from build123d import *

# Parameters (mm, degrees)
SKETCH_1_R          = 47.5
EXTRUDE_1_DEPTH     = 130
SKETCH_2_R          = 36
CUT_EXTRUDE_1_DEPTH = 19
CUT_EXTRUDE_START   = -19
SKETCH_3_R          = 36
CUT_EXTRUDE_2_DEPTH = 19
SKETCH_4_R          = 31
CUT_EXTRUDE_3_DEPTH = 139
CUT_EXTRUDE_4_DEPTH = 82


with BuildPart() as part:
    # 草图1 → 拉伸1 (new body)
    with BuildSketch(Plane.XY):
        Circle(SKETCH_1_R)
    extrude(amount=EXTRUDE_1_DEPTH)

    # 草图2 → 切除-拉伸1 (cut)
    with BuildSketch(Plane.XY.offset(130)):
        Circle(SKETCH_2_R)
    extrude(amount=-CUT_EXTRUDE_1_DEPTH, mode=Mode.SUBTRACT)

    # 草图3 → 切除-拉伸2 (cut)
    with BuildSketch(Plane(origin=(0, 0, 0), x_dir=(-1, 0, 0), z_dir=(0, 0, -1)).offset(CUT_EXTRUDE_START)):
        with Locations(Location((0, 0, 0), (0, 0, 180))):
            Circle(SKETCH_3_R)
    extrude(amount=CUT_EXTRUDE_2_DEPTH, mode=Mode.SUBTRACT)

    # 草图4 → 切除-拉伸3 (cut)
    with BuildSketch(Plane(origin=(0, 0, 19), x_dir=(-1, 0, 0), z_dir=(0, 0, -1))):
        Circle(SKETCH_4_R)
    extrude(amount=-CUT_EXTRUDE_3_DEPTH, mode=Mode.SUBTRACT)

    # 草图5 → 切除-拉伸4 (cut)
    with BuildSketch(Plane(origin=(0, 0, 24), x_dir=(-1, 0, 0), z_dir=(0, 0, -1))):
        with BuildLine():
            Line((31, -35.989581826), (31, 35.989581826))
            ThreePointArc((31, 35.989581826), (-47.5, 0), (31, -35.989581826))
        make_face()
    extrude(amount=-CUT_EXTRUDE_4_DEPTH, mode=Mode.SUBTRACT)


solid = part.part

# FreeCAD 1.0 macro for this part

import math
import FreeCAD as App
import Part
import Sketcher
from FreeCAD import Vector
Q = App.Units.Quantity

doc = App.newDocument("Part")
body = doc.addObject("PartDesign::Body", "Body")

sketch1 = body.newObject("Sketcher::SketchObject", "Sketch")
sketch1.AttachmentSupport = (doc.getObject("XY_Plane"), [""])
sketch1.MapMode = "FlatFace"
sketch1.addGeometry(Part.Circle(Vector(0, 0, 0), Vector(0, 0, 1), 48), False)
sketch1.addConstraint([
    Sketcher.Constraint("Coincident", 0, 3, -1, 1),
    Sketcher.Constraint("Diameter", 0, Q("95 mm")),
])
pad1 = body.newObject("PartDesign::Pad", "Pad")
pad1.Profile = sketch1
pad1.Length = 130

sketch2 = body.newObject("Sketcher::SketchObject", "Sketch001")
sketch2.AttachmentSupport = (doc.getObject("XY_Plane"), [""])
sketch2.MapMode = "FlatFace"
sketch2.AttachmentOffset = App.Placement(Vector(0, 0, 130), App.Rotation())
sketch2.addGeometry(Part.Circle(Vector(0, 0, 0), Vector(0, 0, 1), 36), False)
sketch2.addConstraint([
    Sketcher.Constraint("Coincident", 0, 3, -1, 1),
    Sketcher.Constraint("Diameter", 0, Q("72 mm")),
])
pocket1 = body.newObject("PartDesign::Pocket", "Pocket")
pocket1.Profile = sketch2
pocket1.Length = 19

sketch3 = body.newObject("Sketcher::SketchObject", "Sketch002")
sketch3.AttachmentSupport = (doc.getObject("XY_Plane"), [""])
sketch3.MapMode = "FlatFace"
sketch3.AttachmentOffset = App.Placement(Vector(0, 0, 19), App.Rotation())
sketch3.addGeometry(Part.Circle(Vector(0, 0, 0), Vector(0, 0, 1), 36), False)
sketch3.addConstraint([
    Sketcher.Constraint("Coincident", 0, 3, -1, 1),
    Sketcher.Constraint("Diameter", 0, Q("72 mm")),
])
pocket2 = body.newObject("PartDesign::Pocket", "Pocket001")
pocket2.Profile = sketch3
pocket2.Length = 19

sketch4 = body.newObject("Sketcher::SketchObject", "Sketch003")
sketch4.AttachmentSupport = (doc.getObject("XY_Plane"), [""])
sketch4.MapMode = "FlatFace"
sketch4.AttachmentOffset = App.Placement(Vector(0, 0, 19), App.Rotation())
sketch4.addGeometry(Part.Circle(Vector(0, 0, 0), Vector(0, 0, 1), 31), False)
sketch4.addConstraint([
    Sketcher.Constraint("Coincident", 0, 3, -1, 1),
    Sketcher.Constraint("Diameter", 0, Q("62 mm")),
])
pocket3 = body.newObject("PartDesign::Pocket", "Pocket002")
pocket3.Profile = sketch4
pocket3.Length = 139
pocket3.Reversed = True

sketch5 = body.newObject("Sketcher::SketchObject", "Sketch004")
sketch5.AttachmentSupport = (doc.getObject("XY_Plane"), [""])
sketch5.MapMode = "FlatFace"
sketch5.AttachmentOffset = App.Placement(Vector(0, 0, 24), App.Rotation())
sketch5.addGeometry([
    Part.LineSegment(Vector(-31, -36, 0), Vector(-31, 36, 0)),
    Part.ArcOfCircle(Part.Circle(Vector(0, 0, 0), Vector(0, 0, 1), 48), math.radians(-131), math.radians(131)),
], False)
sketch5.addConstraint([
    Sketcher.Constraint("Coincident", 0, 1, 1, 1),
    Sketcher.Constraint("Coincident", 1, 2, 0, 2),
    Sketcher.Constraint("Vertical", 0),
    Sketcher.Constraint("Coincident", 1, 3, -1, 1),
    Sketcher.Constraint("Radius", 1, Q("47.5 mm")),
    Sketcher.Constraint("DistanceX", 0, 1, -1, 1, Q("31 mm")),
])
pocket4 = body.newObject("PartDesign::Pocket", "Pocket003")
pocket4.Profile = sketch5
pocket4.Length = 82
pocket4.Reversed = True

doc.recompute()
